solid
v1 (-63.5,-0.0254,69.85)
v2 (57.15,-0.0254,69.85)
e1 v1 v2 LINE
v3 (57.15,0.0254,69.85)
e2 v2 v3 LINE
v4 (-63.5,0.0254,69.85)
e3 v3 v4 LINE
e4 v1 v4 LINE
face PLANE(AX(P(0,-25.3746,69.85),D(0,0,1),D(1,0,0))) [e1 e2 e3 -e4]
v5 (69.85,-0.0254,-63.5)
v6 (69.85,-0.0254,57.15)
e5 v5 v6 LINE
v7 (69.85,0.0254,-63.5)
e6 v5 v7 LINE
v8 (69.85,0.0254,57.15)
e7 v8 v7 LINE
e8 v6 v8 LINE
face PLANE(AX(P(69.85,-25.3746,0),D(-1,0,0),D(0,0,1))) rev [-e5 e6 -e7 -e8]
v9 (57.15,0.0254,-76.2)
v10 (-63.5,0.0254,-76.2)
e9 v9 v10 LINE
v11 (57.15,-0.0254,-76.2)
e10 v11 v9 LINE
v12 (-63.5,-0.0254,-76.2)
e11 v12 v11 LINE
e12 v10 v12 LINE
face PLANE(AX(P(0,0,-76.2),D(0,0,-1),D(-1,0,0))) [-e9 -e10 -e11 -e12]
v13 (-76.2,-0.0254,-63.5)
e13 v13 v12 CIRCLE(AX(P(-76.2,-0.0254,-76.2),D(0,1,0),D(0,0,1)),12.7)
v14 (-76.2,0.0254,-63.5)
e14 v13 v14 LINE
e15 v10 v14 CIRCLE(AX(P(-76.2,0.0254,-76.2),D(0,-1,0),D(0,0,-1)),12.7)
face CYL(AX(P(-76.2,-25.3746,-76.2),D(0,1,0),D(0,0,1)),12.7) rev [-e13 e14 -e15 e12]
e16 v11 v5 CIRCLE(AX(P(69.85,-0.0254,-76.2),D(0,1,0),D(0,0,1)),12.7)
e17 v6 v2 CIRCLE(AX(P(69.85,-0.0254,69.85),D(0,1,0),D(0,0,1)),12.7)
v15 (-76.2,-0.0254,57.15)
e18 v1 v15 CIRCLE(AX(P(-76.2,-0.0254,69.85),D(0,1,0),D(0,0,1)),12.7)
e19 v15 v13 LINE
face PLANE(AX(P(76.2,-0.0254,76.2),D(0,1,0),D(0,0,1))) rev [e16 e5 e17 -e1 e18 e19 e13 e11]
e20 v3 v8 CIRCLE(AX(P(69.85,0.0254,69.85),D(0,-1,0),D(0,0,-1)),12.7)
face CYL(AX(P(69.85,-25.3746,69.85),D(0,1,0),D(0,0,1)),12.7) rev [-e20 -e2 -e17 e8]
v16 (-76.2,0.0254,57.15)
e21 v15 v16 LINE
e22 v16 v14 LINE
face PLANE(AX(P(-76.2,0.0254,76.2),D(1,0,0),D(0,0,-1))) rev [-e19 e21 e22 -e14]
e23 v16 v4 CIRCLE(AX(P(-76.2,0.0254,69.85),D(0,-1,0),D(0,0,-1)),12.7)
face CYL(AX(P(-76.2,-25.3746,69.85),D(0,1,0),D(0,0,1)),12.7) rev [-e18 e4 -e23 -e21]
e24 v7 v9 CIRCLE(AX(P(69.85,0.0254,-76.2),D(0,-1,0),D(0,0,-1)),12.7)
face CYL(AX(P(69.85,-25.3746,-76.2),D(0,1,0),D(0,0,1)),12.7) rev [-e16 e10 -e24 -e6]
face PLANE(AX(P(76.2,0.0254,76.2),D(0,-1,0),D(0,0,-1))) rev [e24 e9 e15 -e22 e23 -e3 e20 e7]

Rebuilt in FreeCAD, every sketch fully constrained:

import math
import FreeCAD as App
import Part
import Sketcher
Q = App.Units.Quantity


def add_polygon(sketch, points):
    """Adds a closed chain of lines whose ends are joined by coincident constraints."""
    first, n = sketch.GeometryCount, len(points)
    for a, b in zip(points, points[1:] + points[:1]):
        sketch.addGeometry(Part.LineSegment(App.Vector(*a, 0), App.Vector(*b, 0)), False)
    for i in range(n):
        sketch.addConstraint(Sketcher.Constraint("Coincident", first + i, 2, first + (i + 1) % n, 1))

doc = App.newDocument("Part")
body = doc.addObject("PartDesign::Body", "Body")

# Sketch on XY plane
sketch1 = body.newObject("Sketcher::SketchObject", "Sketch")
sketch1.AttachmentSupport = (doc.getObject("XY_Plane"), [""])
sketch1.MapMode = "FlatFace"
add_polygon(sketch1, [(-76.2, 0.03), (-76.2, -0.03), (76.2, -0.03), (76.2, 0.03)])  # lines 0-3
sketch1.addConstraint(Sketcher.Constraint("Vertical", 0))
sketch1.addConstraint(Sketcher.Constraint("Horizontal", 1))
sketch1.addConstraint(Sketcher.Constraint("Vertical", 2))
sketch1.addConstraint(Sketcher.Constraint("Horizontal", 3))
sketch1.addConstraint(Sketcher.Constraint("Symmetric", 0, 2, 2, 2, -1, 1))
sketch1.addConstraint(Sketcher.Constraint("DistanceX", 1, 1, 1, 2, Q("6 in")))
sketch1.addConstraint(Sketcher.Constraint("DistanceY", 0, 2, 0, 1, Q("0.002 in")))
pad1 = body.newObject("PartDesign::Pad", "Pad")
pad1.Profile = sketch1
pad1.Type = "TwoLengths"
pad1.Length = Q("3 in")
pad1.Length2 = Q("3 in")

# Sketch on XZ plane
sketch2 = body.newObject("Sketcher::SketchObject", "Sketch001")
sketch2.AttachmentSupport = (doc.getObject("XZ_Plane"), [""])
sketch2.MapMode = "FlatFace"
sketch2.AttachmentOffset = App.Placement(App.Vector(0, 0, -0.001 * 25.4), App.Rotation())
sketch2.addGeometry(Part.LineSegment(App.Vector(-64, -76, 0), App.Vector(-76, -76, 0)), False)
sketch2.addGeometry(Part.LineSegment(App.Vector(-76, -76, 0), App.Vector(-76, -64, 0)), False)
sketch2.addGeometry(Part.ArcOfCircle(Part.Circle(App.Vector(-76, -76, 0), App.Vector(0, 0, 1), 13), math.radians(0), math.radians(90)), False)
sketch2.addGeometry(Part.LineSegment(App.Vector(-76, 57, 0), App.Vector(-76, 76, 0)), False)
sketch2.addGeometry(Part.LineSegment(App.Vector(-76, 76, 0), App.Vector(76, 76, 0)), False)
sketch2.addGeometry(Part.LineSegment(App.Vector(76, 76, 0), App.Vector(76, -76, 0)), False)
sketch2.addGeometry(Part.LineSegment(App.Vector(76, -76, 0), App.Vector(57, -76, 0)), False)
sketch2.addGeometry(Part.ArcOfCircle(Part.Circle(App.Vector(70, -76, 0), App.Vector(0, 0, 1), 13), math.radians(90), math.radians(180)), False)
sketch2.addGeometry(Part.LineSegment(App.Vector(70, -64, 0), App.Vector(70, 57, 0)), False)
sketch2.addGeometry(Part.ArcOfCircle(Part.Circle(App.Vector(70, 70, 0), App.Vector(0, 0, 1), 13), math.radians(180), math.radians(270)), False)
sketch2.addGeometry(Part.LineSegment(App.Vector(57, 70, 0), App.Vector(-64, 70, 0)), False)
sketch2.addGeometry(Part.ArcOfCircle(Part.Circle(App.Vector(-76, 70, 0), App.Vector(0, 0, 1), 13), math.radians(-90), math.radians(0)), False)
sketch2.addConstraint(Sketcher.Constraint("Coincident", 0, 2, 1, 1))
sketch2.addConstraint(Sketcher.Constraint("Coincident", 1, 2, 2, 2))
sketch2.addConstraint(Sketcher.Constraint("Coincident", 2, 1, 0, 1))
sketch2.addConstraint(Sketcher.Constraint("Coincident", 3, 2, 4, 1))
sketch2.addConstraint(Sketcher.Constraint("Coincident", 4, 2, 5, 1))
sketch2.addConstraint(Sketcher.Constraint("Coincident", 5, 2, 6, 1))
sketch2.addConstraint(Sketcher.Constraint("Coincident", 6, 2, 7, 2))
sketch2.addConstraint(Sketcher.Constraint("Coincident", 7, 1, 8, 1))
sketch2.addConstraint(Sketcher.Constraint("Coincident", 8, 2, 9, 2))
sketch2.addConstraint(Sketcher.Constraint("Coincident", 9, 1, 10, 1))
sketch2.addConstraint(Sketcher.Constraint("Coincident", 10, 2, 11, 2))
sketch2.addConstraint(Sketcher.Constraint("Coincident", 11, 1, 3, 1))
sketch2.addConstraint(Sketcher.Constraint("Horizontal", 0))
sketch2.addConstraint(Sketcher.Constraint("Vertical", 1))
sketch2.addConstraint(Sketcher.Constraint("Vertical", 3))
sketch2.addConstraint(Sketcher.Constraint("Horizontal", 4))
sketch2.addConstraint(Sketcher.Constraint("Vertical", 5))
sketch2.addConstraint(Sketcher.Constraint("Horizontal", 6))
sketch2.addConstraint(Sketcher.Constraint("Vertical", 8))
sketch2.addConstraint(Sketcher.Constraint("Horizontal", 10))
sketch2.addConstraint(Sketcher.Constraint("Coincident", 0, 2, 2, 3))
sketch2.addConstraint(Sketcher.Constraint("Equal", 2, 7))
sketch2.addConstraint(Sketcher.Constraint("Equal", 7, 9))
sketch2.addConstraint(Sketcher.Constraint("Equal", 9, 11))
sketch2.addConstraint(Sketcher.Constraint("Symmetric", 0, 2, 4, 2, -1, 1))
sketch2.addConstraint(Sketcher.Constraint("Symmetric", 3, 2, 5, 2, -1, 1))
sketch2.addConstraint(Sketcher.Constraint("Horizontal", 2, 3, 7, 3))
sketch2.addConstraint(Sketcher.Constraint("Horizontal", 9, 3, 11, 3))
sketch2.addConstraint(Sketcher.Constraint("Horizontal", 11, 3, 9, 1))
sketch2.addConstraint(Sketcher.Constraint("Vertical", 7, 3, 9, 3))
sketch2.addConstraint(Sketcher.Constraint("Vertical", 2, 3, 11, 3))
sketch2.addConstraint(Sketcher.Constraint("Vertical", 9, 3, 7, 1))
sketch2.addConstraint(Sketcher.Constraint("Equal", 6, 3))
sketch2.addConstraint(Sketcher.Constraint("Equal", 4, 5))
sketch2.addConstraint(Sketcher.Constraint("Radius", 2, Q("0.5 in")))
sketch2.addConstraint(Sketcher.Constraint("DistanceX", 4, 1, 4, 2, Q("6 in")))
sketch2.addConstraint(Sketcher.Constraint("DistanceX", 6, 2, 6, 1, Q("0.75 in")))
pocket1 = body.newObject("PartDesign::Pocket", "Pocket")
pocket1.Profile = sketch2
pocket1.Length = Q("2 in")
pocket1.Midplane = True

doc.recompute()
